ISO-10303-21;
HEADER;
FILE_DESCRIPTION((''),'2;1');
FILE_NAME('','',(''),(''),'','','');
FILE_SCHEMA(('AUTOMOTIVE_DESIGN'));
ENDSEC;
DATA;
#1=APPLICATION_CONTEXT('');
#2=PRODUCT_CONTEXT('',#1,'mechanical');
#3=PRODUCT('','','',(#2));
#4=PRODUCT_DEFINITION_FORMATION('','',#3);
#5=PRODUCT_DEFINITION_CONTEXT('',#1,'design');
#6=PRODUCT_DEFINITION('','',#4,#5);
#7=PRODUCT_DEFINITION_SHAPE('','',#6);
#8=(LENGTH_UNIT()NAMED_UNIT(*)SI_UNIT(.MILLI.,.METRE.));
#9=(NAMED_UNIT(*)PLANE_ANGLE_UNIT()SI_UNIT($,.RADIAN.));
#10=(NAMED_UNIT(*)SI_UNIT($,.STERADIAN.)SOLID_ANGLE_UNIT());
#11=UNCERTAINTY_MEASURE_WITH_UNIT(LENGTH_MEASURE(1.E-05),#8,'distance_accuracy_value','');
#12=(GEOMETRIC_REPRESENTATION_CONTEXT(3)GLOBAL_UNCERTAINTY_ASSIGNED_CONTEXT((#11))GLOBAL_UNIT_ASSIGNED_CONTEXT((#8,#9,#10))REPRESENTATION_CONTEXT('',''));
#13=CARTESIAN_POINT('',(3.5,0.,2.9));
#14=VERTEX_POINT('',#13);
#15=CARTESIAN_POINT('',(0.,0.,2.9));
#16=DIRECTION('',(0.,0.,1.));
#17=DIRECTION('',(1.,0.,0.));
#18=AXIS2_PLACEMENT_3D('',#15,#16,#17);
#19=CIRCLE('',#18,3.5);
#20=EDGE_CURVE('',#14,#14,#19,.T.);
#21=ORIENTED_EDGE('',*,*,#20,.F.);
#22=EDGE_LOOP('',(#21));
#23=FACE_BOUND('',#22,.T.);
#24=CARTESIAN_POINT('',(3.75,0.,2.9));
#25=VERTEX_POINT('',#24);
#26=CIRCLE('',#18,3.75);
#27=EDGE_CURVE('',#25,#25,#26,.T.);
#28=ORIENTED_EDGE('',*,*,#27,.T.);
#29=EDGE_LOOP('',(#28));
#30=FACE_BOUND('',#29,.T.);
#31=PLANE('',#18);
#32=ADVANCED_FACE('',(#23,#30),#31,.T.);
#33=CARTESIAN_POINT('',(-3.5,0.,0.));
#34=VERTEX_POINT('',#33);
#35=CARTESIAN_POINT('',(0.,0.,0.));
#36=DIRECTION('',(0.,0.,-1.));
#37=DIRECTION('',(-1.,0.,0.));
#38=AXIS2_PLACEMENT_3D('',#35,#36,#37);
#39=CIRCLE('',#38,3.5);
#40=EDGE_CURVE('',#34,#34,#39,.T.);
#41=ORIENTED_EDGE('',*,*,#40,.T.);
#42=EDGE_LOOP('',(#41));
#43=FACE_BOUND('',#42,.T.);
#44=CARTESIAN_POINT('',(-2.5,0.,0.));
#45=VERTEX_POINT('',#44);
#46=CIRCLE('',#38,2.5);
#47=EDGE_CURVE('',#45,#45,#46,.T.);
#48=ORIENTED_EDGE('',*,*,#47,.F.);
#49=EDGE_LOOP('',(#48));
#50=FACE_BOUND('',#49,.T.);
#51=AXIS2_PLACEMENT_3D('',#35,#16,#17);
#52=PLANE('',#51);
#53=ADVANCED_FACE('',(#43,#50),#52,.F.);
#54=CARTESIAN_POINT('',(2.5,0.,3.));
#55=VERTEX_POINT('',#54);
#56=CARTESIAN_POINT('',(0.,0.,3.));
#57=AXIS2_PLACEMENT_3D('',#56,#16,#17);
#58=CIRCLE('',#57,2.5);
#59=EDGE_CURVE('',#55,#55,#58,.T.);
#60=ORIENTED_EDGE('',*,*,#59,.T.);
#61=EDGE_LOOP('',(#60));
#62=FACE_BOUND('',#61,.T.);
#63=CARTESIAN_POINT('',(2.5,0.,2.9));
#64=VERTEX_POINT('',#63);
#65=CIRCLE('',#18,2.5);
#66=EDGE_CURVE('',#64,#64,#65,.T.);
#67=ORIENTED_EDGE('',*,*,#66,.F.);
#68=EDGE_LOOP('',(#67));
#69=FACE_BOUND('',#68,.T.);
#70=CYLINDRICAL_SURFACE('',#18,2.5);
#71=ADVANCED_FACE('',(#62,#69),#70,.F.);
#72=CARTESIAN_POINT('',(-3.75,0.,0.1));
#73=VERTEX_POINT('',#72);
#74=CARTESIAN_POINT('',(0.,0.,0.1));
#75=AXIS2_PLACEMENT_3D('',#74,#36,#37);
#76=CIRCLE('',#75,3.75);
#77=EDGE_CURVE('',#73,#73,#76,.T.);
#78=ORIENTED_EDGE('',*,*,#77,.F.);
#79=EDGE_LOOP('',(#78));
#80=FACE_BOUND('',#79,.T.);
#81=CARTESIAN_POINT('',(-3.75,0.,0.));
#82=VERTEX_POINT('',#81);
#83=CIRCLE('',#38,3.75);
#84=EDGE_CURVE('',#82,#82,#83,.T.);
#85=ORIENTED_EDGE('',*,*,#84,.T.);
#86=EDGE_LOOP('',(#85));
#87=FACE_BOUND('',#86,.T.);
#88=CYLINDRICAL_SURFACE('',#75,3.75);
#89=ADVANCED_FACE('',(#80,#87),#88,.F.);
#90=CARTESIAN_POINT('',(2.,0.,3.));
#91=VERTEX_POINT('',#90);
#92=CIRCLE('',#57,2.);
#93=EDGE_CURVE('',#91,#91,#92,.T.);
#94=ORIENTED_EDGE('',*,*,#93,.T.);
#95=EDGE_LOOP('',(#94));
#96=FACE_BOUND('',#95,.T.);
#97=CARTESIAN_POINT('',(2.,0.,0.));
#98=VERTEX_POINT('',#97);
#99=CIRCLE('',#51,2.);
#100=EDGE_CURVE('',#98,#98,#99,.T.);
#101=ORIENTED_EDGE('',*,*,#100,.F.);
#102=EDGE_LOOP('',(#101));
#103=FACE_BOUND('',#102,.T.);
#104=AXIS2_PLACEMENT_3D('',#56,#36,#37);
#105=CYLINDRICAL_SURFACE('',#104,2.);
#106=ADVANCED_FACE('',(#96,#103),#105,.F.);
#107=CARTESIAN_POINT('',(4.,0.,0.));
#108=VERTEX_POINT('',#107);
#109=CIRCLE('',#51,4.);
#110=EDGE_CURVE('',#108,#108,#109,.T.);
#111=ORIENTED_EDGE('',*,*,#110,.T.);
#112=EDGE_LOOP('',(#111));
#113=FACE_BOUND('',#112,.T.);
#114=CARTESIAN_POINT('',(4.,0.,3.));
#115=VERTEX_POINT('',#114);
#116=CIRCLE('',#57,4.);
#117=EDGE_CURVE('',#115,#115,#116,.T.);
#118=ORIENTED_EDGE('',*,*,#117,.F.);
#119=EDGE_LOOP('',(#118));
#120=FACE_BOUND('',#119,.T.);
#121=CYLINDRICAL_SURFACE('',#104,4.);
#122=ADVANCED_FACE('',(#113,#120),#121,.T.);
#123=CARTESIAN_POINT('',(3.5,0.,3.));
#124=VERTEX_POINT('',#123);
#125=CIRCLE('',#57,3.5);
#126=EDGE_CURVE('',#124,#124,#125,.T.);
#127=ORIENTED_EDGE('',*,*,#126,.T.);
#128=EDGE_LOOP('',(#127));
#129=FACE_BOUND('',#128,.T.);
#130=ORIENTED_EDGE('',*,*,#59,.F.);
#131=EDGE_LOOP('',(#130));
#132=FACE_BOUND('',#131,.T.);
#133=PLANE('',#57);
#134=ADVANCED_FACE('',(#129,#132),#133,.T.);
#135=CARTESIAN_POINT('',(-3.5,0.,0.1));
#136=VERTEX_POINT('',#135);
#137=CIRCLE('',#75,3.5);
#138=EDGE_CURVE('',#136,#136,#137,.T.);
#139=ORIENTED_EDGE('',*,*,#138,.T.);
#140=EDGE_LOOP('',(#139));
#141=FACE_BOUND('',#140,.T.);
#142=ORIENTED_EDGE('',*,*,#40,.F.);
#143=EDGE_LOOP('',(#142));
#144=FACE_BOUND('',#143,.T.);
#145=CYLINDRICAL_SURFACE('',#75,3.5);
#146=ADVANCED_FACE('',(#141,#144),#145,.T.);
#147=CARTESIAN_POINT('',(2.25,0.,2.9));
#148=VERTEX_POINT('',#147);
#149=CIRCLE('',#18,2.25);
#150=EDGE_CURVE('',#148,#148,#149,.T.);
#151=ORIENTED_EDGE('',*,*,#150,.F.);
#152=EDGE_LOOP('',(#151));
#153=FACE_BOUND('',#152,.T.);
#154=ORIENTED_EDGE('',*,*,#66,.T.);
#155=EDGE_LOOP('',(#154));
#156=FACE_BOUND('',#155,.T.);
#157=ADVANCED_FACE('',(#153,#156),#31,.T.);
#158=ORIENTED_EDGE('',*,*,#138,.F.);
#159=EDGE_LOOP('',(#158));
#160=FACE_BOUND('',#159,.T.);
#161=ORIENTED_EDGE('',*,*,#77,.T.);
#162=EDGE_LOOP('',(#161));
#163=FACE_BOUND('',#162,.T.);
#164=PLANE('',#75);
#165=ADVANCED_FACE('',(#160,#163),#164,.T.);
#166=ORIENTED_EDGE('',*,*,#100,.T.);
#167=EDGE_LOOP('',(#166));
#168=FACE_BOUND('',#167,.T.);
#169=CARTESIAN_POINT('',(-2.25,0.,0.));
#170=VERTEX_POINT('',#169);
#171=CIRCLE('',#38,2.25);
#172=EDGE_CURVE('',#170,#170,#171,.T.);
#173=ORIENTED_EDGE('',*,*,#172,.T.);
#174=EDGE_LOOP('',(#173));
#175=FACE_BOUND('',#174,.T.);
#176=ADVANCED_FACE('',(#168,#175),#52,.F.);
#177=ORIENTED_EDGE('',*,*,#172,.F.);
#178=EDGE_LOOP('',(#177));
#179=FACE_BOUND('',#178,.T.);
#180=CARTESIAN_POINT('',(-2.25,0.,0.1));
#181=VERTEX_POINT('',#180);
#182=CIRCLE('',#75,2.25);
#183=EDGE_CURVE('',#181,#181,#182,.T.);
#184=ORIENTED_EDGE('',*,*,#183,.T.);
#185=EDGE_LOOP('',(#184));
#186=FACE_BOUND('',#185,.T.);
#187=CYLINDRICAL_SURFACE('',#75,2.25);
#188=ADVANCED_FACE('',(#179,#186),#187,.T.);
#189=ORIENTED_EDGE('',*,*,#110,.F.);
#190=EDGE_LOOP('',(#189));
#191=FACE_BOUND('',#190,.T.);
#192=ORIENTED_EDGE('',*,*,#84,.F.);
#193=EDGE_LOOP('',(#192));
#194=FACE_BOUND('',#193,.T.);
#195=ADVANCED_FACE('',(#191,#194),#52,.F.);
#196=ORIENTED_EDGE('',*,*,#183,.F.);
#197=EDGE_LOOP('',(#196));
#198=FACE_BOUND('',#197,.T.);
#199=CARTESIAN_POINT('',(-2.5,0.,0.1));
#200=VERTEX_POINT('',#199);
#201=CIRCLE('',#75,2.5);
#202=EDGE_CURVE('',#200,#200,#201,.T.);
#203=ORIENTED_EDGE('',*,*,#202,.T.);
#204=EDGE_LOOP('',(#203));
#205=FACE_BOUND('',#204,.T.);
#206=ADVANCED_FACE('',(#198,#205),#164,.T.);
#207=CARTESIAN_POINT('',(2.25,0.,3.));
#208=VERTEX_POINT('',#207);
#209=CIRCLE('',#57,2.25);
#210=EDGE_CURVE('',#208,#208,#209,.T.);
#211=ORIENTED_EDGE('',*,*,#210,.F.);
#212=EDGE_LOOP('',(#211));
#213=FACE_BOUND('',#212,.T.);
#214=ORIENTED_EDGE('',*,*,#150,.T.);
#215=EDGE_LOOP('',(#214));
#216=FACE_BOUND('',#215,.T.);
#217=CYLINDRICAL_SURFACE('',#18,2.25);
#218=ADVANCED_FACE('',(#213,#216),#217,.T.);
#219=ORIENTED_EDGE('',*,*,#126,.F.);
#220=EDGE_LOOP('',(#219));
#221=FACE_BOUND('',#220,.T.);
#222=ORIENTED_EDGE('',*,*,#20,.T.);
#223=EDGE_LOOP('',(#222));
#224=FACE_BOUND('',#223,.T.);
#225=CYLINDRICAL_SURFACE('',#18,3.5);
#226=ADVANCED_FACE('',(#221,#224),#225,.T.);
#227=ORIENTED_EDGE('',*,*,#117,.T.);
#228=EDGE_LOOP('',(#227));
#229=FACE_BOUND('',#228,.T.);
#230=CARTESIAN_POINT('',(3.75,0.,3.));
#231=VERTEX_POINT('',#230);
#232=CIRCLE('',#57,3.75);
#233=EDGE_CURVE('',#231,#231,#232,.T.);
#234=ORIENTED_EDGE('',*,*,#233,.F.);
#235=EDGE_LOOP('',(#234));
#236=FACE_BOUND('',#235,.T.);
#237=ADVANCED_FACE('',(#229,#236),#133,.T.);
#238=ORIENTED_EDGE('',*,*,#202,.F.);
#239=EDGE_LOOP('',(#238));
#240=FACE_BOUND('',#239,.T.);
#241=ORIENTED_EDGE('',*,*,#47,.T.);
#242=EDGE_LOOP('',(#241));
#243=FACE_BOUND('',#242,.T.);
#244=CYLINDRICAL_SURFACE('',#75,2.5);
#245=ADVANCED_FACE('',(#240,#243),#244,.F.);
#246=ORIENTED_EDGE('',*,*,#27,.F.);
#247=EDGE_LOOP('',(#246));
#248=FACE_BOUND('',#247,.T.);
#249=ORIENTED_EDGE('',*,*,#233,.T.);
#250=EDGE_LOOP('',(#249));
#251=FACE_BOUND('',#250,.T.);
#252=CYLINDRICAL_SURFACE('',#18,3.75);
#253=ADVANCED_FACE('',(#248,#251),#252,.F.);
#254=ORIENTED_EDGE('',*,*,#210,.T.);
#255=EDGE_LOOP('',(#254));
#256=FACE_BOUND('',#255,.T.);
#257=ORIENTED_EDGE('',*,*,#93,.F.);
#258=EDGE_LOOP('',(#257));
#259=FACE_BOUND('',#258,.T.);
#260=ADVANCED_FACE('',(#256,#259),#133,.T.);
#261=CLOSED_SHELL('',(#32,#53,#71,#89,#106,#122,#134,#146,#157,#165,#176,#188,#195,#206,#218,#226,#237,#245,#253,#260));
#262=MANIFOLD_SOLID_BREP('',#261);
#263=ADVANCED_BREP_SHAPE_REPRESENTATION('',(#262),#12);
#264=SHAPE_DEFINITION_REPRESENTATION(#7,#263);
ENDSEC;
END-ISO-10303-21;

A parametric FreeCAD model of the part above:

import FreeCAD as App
import Part
import Sketcher
Q = App.Units.Quantity

doc = App.newDocument("Part")
body = doc.addObject("PartDesign::Body", "Body")

# Sketch on XY plane
sketch1 = body.newObject("Sketcher::SketchObject", "Sketch")
sketch1.AttachmentSupport = (doc.getObject("XY_Plane"), [""])
sketch1.MapMode = "FlatFace"
sketch1.addGeometry(Part.Circle(App.Vector(0, 0, 0), App.Vector(0, 0, 1), 4), False)
sketch1.addGeometry(Part.Circle(App.Vector(0, 0, 0), App.Vector(0, 0, 1), 2), False)
sketch1.addConstraint(Sketcher.Constraint("Coincident", 0, 3, -1, 1))
sketch1.addConstraint(Sketcher.Constraint("Coincident", 1, 3, -1, 1))
sketch1.addConstraint(Sketcher.Constraint("Diameter", 0, Q("8 mm")))
sketch1.addConstraint(Sketcher.Constraint("Diameter", 1, Q("4 mm")))
pad1 = body.newObject("PartDesign::Pad", "Pad")
pad1.Profile = sketch1
pad1.Length = 3

# Sketch on XY plane
sketch2 = body.newObject("Sketcher::SketchObject", "Sketch001")
sketch2.AttachmentSupport = (doc.getObject("XY_Plane"), [""])
sketch2.MapMode = "FlatFace"
sketch2.AttachmentOffset = App.Placement(App.Vector(0, 0, 3), App.Rotation())
sketch2.addGeometry(Part.Circle(App.Vector(0, 0, 0), App.Vector(0, 0, 1), 3.75), False)
sketch2.addGeometry(Part.Circle(App.Vector(0, 0, 0), App.Vector(0, 0, 1), 3.5), False)
sketch2.addGeometry(Part.Circle(App.Vector(0, 0, 0), App.Vector(0, 0, 1), 2.5), False)
sketch2.addGeometry(Part.Circle(App.Vector(0, 0, 0), App.Vector(0, 0, 1), 2.25), False)
sketch2.addConstraint(Sketcher.Constraint("Coincident", 0, 3, -1, 1))
sketch2.addConstraint(Sketcher.Constraint("Coincident", 1, 3, -1, 1))
sketch2.addConstraint(Sketcher.Constraint("Coincident", 2, 3, -1, 1))
sketch2.addConstraint(Sketcher.Constraint("Coincident", 3, 3, -1, 1))
sketch2.addConstraint(Sketcher.Constraint("Diameter", 1, Q("7 mm")))
sketch2.addConstraint(Sketcher.Constraint("Diameter", 2, Q("5 mm")))
sketch2.addConstraint(Sketcher.Constraint("Diameter", 0, Q("7.5 mm")))
sketch2.addConstraint(Sketcher.Constraint("Diameter", 3, Q("4.5 mm")))
pocket1 = body.newObject("PartDesign::Pocket", "Pocket")
pocket1.Profile = sketch2
pocket1.Length = 0.1

# Sketch on XY plane
sketch3 = body.newObject("Sketcher::SketchObject", "Sketch002")
sketch3.AttachmentSupport = (doc.getObject("XY_Plane"), [""])
sketch3.MapMode = "FlatFace"
sketch3.AttachmentOffset = App.Placement(App.Vector(0, 0, 0.1), App.Rotation())
sketch3.addGeometry(Part.Circle(App.Vector(0, 0, 0), App.Vector(0, 0, 1), 3.75), False)
sketch3.addGeometry(Part.Circle(App.Vector(0, 0, 0), App.Vector(0, 0, 1), 3.5), False)
sketch3.addGeometry(Part.Circle(App.Vector(0, 0, 0), App.Vector(0, 0, 1), 2.5), False)
sketch3.addGeometry(Part.Circle(App.Vector(0, 0, 0), App.Vector(0, 0, 1), 2.25), False)
sketch3.addConstraint(Sketcher.Constraint("Coincident", 0, 3, -1, 1))
sketch3.addConstraint(Sketcher.Constraint("Coincident", 1, 3, -1, 1))
sketch3.addConstraint(Sketcher.Constraint("Coincident", 2, 3, -1, 1))
sketch3.addConstraint(Sketcher.Constraint("Coincident", 3, 3, -1, 1))
sketch3.addConstraint(Sketcher.Constraint("Diameter", 1, Q("7 mm")))
sketch3.addConstraint(Sketcher.Constraint("Diameter", 2, Q("5 mm")))
sketch3.addConstraint(Sketcher.Constraint("Diameter", 0, Q("7.5 mm")))
sketch3.addConstraint(Sketcher.Constraint("Diameter", 3, Q("4.5 mm")))
pocket2 = body.newObject("PartDesign::Pocket", "Pocket001")
pocket2.Profile = sketch3
pocket2.Length = 0.1

doc.recompute()
